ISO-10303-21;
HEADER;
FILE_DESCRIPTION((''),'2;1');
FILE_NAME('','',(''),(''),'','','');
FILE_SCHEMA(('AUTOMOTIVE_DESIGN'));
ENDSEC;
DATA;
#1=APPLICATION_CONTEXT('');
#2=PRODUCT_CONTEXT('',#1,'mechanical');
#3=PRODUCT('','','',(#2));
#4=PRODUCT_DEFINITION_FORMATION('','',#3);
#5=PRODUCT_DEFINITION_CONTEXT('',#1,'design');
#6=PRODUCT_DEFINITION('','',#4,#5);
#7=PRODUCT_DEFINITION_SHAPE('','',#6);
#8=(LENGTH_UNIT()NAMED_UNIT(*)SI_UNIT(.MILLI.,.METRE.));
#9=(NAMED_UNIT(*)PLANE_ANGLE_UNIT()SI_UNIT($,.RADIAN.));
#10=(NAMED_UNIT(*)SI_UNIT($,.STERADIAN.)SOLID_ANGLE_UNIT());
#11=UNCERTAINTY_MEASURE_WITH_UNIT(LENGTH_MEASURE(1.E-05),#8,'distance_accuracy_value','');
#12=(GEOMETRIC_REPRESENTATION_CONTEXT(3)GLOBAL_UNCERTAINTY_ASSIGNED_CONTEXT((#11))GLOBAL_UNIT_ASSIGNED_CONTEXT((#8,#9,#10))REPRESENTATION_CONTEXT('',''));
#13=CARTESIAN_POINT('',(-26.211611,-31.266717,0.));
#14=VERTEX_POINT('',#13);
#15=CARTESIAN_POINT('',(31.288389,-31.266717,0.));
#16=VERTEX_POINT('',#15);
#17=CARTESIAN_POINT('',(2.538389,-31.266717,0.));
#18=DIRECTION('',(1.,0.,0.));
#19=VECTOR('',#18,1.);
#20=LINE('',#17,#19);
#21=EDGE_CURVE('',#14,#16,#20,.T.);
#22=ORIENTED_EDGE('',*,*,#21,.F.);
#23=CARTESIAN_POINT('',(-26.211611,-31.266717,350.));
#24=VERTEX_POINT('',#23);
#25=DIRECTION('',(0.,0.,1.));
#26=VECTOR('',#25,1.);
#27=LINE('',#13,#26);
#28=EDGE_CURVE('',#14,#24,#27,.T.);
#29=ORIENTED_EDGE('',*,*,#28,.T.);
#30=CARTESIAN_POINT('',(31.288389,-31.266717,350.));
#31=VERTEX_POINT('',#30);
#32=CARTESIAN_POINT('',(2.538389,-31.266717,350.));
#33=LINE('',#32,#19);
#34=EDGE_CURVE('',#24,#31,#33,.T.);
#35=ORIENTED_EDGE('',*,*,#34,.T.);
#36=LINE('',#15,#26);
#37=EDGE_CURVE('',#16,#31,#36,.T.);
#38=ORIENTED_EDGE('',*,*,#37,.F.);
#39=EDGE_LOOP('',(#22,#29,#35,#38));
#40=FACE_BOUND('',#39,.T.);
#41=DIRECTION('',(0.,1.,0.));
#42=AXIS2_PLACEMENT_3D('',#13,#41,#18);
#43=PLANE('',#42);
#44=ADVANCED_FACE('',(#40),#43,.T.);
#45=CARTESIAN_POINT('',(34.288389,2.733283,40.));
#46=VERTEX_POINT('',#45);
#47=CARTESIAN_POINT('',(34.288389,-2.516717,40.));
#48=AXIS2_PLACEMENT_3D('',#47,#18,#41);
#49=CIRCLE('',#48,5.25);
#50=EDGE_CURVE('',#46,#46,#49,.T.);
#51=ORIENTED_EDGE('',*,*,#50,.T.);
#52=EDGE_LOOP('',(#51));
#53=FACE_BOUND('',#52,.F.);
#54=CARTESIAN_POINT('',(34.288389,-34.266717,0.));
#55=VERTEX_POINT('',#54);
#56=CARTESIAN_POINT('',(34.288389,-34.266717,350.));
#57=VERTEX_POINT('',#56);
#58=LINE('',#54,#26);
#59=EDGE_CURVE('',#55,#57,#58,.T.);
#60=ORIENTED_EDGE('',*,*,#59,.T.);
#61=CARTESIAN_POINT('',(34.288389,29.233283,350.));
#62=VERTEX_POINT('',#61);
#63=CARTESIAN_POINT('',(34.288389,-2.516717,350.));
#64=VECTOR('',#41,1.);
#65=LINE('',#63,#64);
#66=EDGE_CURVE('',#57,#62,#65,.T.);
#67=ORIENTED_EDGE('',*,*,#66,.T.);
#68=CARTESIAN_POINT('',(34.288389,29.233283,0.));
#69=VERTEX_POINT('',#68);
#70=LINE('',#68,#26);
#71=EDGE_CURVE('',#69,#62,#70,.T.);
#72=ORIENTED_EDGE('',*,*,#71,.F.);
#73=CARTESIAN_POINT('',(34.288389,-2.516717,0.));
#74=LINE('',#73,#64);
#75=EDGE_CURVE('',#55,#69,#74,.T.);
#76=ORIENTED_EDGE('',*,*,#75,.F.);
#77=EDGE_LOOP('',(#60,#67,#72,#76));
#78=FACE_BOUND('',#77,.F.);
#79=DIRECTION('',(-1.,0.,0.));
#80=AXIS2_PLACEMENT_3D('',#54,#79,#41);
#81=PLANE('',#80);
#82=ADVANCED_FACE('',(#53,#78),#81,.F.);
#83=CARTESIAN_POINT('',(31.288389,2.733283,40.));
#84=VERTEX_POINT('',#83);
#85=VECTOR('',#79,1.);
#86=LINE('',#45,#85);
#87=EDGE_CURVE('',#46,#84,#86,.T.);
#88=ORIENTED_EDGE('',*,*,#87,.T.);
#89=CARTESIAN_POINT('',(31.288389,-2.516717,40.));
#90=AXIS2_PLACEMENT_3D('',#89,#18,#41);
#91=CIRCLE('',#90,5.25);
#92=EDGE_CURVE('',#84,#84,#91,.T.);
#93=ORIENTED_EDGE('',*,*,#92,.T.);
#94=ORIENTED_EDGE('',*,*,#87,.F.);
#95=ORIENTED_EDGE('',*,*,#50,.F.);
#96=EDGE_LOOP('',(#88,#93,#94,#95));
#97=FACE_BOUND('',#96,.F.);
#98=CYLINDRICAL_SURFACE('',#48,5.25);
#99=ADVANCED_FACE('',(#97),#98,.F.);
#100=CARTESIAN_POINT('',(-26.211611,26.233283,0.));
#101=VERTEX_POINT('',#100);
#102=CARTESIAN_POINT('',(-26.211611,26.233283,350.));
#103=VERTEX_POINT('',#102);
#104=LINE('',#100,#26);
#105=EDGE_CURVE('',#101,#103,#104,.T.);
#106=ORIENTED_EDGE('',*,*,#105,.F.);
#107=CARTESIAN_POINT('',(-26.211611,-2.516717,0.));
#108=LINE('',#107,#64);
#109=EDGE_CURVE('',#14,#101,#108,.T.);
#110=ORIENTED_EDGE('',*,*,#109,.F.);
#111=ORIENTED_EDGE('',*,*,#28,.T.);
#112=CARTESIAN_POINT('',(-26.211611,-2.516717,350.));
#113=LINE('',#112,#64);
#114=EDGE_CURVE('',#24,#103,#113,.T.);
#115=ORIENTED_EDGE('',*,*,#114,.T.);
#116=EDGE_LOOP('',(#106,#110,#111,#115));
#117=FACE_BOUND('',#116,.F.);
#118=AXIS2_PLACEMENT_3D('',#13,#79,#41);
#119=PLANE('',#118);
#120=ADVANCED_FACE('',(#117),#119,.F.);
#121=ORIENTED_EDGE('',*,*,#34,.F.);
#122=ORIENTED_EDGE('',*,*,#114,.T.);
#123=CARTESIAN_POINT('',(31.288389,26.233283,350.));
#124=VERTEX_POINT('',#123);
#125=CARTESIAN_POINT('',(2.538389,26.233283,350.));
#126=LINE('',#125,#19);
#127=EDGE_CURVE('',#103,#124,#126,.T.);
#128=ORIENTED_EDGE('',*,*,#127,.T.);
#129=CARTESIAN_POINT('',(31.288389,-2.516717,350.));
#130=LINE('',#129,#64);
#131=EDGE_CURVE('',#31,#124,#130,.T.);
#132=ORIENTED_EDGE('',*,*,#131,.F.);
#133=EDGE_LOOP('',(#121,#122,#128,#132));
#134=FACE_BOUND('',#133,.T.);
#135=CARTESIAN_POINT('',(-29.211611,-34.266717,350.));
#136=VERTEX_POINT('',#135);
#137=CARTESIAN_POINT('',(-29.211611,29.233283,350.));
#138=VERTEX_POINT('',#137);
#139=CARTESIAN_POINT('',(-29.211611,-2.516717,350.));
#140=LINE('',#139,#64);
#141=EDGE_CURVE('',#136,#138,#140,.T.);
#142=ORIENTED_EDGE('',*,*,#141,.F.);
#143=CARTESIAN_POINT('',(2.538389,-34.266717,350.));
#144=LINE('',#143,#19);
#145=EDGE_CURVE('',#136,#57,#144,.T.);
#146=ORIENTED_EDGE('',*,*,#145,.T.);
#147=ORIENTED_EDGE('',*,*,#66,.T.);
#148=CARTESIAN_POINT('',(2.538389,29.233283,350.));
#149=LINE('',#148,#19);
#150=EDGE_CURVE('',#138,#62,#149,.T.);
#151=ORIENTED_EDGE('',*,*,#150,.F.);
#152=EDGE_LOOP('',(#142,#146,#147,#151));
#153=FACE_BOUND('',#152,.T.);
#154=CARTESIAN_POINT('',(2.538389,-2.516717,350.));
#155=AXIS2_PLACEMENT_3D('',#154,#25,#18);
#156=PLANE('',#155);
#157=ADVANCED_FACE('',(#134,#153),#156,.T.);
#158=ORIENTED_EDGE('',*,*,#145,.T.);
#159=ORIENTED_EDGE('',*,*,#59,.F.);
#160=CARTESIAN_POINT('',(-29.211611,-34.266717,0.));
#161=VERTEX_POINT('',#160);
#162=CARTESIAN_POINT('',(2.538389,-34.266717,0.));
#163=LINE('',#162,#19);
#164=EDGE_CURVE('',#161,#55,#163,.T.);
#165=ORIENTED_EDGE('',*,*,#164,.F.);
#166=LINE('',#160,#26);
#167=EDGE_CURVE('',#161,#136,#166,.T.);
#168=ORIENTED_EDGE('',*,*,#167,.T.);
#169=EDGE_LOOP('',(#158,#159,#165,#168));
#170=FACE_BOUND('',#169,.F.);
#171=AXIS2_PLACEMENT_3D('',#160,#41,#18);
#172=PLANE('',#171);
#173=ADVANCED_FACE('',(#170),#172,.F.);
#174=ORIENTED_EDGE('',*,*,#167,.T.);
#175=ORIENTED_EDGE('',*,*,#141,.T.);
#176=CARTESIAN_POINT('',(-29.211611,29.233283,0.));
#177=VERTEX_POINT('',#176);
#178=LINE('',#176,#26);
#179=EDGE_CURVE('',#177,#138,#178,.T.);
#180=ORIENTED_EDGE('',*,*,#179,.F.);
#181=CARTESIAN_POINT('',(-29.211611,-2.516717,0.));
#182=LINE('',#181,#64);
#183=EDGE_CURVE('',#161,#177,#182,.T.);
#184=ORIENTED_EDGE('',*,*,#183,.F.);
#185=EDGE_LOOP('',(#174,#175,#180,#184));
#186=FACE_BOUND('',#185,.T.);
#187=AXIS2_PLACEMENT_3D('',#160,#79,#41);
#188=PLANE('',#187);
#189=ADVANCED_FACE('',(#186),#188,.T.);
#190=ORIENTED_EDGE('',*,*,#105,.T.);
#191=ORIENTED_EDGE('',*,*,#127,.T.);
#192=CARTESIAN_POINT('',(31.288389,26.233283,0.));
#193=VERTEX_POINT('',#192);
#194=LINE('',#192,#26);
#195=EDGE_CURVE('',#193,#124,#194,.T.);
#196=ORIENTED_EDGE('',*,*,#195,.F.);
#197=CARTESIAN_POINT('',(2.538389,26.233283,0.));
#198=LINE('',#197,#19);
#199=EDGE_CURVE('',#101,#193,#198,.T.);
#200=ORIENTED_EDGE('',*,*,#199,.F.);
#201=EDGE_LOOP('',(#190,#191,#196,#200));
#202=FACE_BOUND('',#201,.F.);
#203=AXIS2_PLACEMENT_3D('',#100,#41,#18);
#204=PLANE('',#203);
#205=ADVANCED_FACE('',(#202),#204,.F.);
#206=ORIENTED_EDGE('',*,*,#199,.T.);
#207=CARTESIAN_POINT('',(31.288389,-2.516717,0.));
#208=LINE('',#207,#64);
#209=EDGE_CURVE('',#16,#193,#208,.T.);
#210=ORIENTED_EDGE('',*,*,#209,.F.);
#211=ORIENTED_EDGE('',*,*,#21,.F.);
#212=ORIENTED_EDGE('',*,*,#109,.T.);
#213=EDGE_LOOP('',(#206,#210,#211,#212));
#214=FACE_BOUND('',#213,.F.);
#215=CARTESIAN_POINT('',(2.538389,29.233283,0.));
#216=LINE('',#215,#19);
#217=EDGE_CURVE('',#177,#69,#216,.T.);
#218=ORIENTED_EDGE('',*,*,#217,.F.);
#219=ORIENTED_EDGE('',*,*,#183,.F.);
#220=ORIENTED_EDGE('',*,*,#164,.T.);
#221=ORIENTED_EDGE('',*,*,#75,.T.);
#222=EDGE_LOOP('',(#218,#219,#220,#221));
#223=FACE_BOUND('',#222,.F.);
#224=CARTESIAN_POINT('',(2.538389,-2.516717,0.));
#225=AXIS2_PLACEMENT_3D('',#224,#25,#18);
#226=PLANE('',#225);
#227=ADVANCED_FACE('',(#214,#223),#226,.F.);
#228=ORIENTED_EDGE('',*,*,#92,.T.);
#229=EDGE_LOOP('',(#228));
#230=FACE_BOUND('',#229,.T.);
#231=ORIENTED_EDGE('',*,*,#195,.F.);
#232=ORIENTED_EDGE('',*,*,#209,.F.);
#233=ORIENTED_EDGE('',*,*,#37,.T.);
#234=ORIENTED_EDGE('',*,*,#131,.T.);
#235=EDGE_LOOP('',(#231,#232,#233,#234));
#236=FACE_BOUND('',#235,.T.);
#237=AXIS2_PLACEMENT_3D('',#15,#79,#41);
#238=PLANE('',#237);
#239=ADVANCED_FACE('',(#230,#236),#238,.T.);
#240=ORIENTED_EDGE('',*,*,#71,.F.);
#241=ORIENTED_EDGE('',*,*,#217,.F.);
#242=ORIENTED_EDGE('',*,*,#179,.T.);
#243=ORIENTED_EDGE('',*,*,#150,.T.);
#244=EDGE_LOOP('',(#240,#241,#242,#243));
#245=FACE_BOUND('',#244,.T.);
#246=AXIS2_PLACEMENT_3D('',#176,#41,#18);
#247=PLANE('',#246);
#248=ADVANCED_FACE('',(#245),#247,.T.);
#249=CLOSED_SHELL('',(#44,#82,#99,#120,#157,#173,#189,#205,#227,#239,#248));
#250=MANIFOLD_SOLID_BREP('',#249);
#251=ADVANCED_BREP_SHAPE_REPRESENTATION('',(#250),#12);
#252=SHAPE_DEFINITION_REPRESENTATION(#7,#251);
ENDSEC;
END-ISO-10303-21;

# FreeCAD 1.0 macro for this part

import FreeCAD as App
import Part
import Sketcher


def add_polygon(sketch, points):
    """Adds a closed chain of lines whose ends are joined by coincident constraints."""
    first, n = sketch.GeometryCount, len(points)
    for a, b in zip(points, points[1:] + points[:1]):
        sketch.addGeometry(Part.LineSegment(App.Vector(*a, 0), App.Vector(*b, 0)), False)
    for i in range(n):
        sketch.addConstraint(Sketcher.Constraint("Coincident", first + i, 2, first + (i + 1) % n, 1))

doc = App.newDocument("Part")
params = doc.addObject("Spreadsheet::Sheet", "Params")
for row, (alias, value) in enumerate([
    ("sketch1_width", "63.5 mm"),
    ("sketch1_width2", "57.5 mm"),
    ("pad1_length", "350 mm"),
    ("sketch2_diameter", "10.5 mm"),
    ("pocket1_length", "25 mm"),
], start=1):
    params.set(f"A{row}", alias)
    params.set(f"B{row}", "=" + value)
    params.setAlias(f"B{row}", alias)

body = doc.addObject("PartDesign::Body", "Body")

# Sketch on XY plane
sketch1 = body.newObject("Sketcher::SketchObject", "Sketch")
sketch1.AttachmentSupport = (doc.getObject("XY_Plane"), [""])
sketch1.MapMode = "FlatFace"
add_polygon(sketch1, [(-29, 29), (-29, -34), (34, -34), (34, 29)])  # lines 0-3
add_polygon(sketch1, [(31, -31), (-26, -31), (-26, 26), (31, 26)])  # lines 4-7
sketch1.addConstraint([
    Sketcher.Constraint("Vertical", 0),
    Sketcher.Constraint("Horizontal", 1),
    Sketcher.Constraint("Vertical", 2),
    Sketcher.Constraint("Horizontal", 3),
    Sketcher.Constraint("Horizontal", 4),
    Sketcher.Constraint("Vertical", 5),
    Sketcher.Constraint("Horizontal", 6),
    Sketcher.Constraint("Vertical", 7),
    Sketcher.Constraint("Equal", 3, 0),
    Sketcher.Constraint("Equal", 6, 5),
    Sketcher.Constraint("DistanceX", 1, 1, 1, 2, 63.5),
    Sketcher.Constraint("DistanceX", 4, 2, 4, 1, 57.5),
    Sketcher.Constraint("DistanceX", 0, 2, 4, 2, 3.0),
    Sketcher.Constraint("DistanceY", 0, 2, 4, 2, 3.0),
    Sketcher.Constraint("DistanceX", 0, 2, -1, 1, 29.211611),
    Sketcher.Constraint("DistanceY", 0, 2, -1, 1, 34.266717),
])
sketch1.setExpression("Constraints[18]", "Params.sketch1_width")
sketch1.setExpression("Constraints[19]", "Params.sketch1_width2")
pad1 = body.newObject("PartDesign::Pad", "Pad")
pad1.Profile = sketch1
pad1.setExpression("Length", "Params.pad1_length")

# Sketch on YZ plane
sketch2 = body.newObject("Sketcher::SketchObject", "Sketch001")
sketch2.AttachmentSupport = (doc.getObject("YZ_Plane"), [""])
sketch2.MapMode = "FlatFace"
sketch2.AttachmentOffset = App.Placement(App.Vector(0, 0, 34.288389), App.Rotation())
sketch2.addGeometry(Part.Circle(App.Vector(-3, 40, 0), App.Vector(0, 0, 1), 5), False)
sketch2.addConstraint([
    Sketcher.Constraint("Diameter", 0, 10.5),
    Sketcher.Constraint("DistanceY", -1, 1, 0, 3, 40.0),
    Sketcher.Constraint("DistanceX", 0, 3, -1, 1, 2.516717),
])
sketch2.setExpression("Constraints[0]", "Params.sketch2_diameter")
pocket1 = body.newObject("PartDesign::Pocket", "Pocket")
pocket1.Profile = sketch2
pocket1.setExpression("Length", "Params.pocket1_length")

doc.recompute()
